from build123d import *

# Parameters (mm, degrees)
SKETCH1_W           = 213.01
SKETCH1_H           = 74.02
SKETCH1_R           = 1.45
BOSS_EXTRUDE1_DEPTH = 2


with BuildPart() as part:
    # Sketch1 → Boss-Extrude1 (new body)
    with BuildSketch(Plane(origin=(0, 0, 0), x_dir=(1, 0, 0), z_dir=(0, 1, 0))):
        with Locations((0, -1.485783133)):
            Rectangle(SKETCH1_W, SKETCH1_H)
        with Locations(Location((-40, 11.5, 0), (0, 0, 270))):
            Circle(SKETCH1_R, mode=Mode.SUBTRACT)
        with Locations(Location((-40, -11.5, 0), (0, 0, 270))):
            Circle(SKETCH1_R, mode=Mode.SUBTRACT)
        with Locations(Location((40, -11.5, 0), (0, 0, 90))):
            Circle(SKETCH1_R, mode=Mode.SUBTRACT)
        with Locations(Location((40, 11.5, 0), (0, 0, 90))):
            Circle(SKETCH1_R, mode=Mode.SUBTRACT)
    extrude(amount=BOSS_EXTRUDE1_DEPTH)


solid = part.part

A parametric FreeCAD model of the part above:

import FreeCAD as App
import Part
import Sketcher
Q = App.Units.Quantity

doc = App.newDocument("Part")
body = doc.addObject("PartDesign::Body", "Body")

# Sketch on XZ plane
sketch1 = body.newObject("Sketcher::SketchObject", "Sketch")
sketch1.AttachmentSupport = (doc.getObject("XZ_Plane"), [""])
sketch1.MapMode = "FlatFace"
sketch1.addGeometry([
    Part.LineSegment(App.Vector(-106.5, -35.5, 0), App.Vector(-106.5, 38.5, 0)),  # 0
    Part.LineSegment(App.Vector(-106.5, 38.5, 0), App.Vector(106.5, 38.5, 0)),  # 1
    Part.LineSegment(App.Vector(106.5, 38.5, 0), App.Vector(106.5, -35.5, 0)),  # 2
    Part.LineSegment(App.Vector(106.5, -35.5, 0), App.Vector(-106.5, -35.5, 0)),  # 3
    Part.Circle(App.Vector(-40, 11.5, 0), App.Vector(0, 0, 1), 1.4),  # 4
    Part.Circle(App.Vector(40, 11.5, 0), App.Vector(0, 0, 1), 1.4),  # 5
    Part.Circle(App.Vector(-40, -11.5, 0), App.Vector(0, 0, 1), 1.4),  # 6
    Part.Circle(App.Vector(40, -11.5, 0), App.Vector(0, 0, 1), 1.4),  # 7
], False)
sketch1.addConstraint([
    Sketcher.Constraint("Coincident", 0, 2, 1, 1),
    Sketcher.Constraint("Coincident", 1, 2, 2, 1),
    Sketcher.Constraint("Coincident", 2, 2, 3, 1),
    Sketcher.Constraint("Coincident", 3, 2, 0, 1),
    Sketcher.Constraint("Vertical", 0),
    Sketcher.Constraint("Horizontal", 1),
    Sketcher.Constraint("Vertical", 2),
    Sketcher.Constraint("Horizontal", 3),
    Sketcher.Constraint("Equal", 4, 5),
    Sketcher.Constraint("Equal", 5, 6),
    Sketcher.Constraint("Equal", 6, 7),
    Sketcher.Constraint("Symmetric", 5, 3, 6, 3, -1, 1),
    Sketcher.Constraint("Symmetric", 4, 3, 7, 3, -1, 1),
    Sketcher.Constraint("Symmetric", 4, 3, 5, 3, -2),
    Sketcher.Constraint("Diameter", 4, Q("2.9 mm")),
    Sketcher.Constraint("DistanceX", 4, 3, -1, 1, Q("40 mm")),
    Sketcher.Constraint("DistanceY", 6, 3, 4, 3, Q("23 mm")),
    Sketcher.Constraint("DistanceX", 1, 1, 1, 2, Q("213.01 mm")),
    Sketcher.Constraint("DistanceY", 0, 1, 0, 2, Q("74.02 mm")),
    Sketcher.Constraint("DistanceX", 0, 2, -1, 1, Q("106.505 mm")),
    Sketcher.Constraint("DistanceY", -1, 1, 0, 2, Q("38.495783 mm")),
])
pad1 = body.newObject("PartDesign::Pad", "Pad")
pad1.Profile = sketch1
pad1.Length = 2
pad1.Reversed = True

doc.recompute()
